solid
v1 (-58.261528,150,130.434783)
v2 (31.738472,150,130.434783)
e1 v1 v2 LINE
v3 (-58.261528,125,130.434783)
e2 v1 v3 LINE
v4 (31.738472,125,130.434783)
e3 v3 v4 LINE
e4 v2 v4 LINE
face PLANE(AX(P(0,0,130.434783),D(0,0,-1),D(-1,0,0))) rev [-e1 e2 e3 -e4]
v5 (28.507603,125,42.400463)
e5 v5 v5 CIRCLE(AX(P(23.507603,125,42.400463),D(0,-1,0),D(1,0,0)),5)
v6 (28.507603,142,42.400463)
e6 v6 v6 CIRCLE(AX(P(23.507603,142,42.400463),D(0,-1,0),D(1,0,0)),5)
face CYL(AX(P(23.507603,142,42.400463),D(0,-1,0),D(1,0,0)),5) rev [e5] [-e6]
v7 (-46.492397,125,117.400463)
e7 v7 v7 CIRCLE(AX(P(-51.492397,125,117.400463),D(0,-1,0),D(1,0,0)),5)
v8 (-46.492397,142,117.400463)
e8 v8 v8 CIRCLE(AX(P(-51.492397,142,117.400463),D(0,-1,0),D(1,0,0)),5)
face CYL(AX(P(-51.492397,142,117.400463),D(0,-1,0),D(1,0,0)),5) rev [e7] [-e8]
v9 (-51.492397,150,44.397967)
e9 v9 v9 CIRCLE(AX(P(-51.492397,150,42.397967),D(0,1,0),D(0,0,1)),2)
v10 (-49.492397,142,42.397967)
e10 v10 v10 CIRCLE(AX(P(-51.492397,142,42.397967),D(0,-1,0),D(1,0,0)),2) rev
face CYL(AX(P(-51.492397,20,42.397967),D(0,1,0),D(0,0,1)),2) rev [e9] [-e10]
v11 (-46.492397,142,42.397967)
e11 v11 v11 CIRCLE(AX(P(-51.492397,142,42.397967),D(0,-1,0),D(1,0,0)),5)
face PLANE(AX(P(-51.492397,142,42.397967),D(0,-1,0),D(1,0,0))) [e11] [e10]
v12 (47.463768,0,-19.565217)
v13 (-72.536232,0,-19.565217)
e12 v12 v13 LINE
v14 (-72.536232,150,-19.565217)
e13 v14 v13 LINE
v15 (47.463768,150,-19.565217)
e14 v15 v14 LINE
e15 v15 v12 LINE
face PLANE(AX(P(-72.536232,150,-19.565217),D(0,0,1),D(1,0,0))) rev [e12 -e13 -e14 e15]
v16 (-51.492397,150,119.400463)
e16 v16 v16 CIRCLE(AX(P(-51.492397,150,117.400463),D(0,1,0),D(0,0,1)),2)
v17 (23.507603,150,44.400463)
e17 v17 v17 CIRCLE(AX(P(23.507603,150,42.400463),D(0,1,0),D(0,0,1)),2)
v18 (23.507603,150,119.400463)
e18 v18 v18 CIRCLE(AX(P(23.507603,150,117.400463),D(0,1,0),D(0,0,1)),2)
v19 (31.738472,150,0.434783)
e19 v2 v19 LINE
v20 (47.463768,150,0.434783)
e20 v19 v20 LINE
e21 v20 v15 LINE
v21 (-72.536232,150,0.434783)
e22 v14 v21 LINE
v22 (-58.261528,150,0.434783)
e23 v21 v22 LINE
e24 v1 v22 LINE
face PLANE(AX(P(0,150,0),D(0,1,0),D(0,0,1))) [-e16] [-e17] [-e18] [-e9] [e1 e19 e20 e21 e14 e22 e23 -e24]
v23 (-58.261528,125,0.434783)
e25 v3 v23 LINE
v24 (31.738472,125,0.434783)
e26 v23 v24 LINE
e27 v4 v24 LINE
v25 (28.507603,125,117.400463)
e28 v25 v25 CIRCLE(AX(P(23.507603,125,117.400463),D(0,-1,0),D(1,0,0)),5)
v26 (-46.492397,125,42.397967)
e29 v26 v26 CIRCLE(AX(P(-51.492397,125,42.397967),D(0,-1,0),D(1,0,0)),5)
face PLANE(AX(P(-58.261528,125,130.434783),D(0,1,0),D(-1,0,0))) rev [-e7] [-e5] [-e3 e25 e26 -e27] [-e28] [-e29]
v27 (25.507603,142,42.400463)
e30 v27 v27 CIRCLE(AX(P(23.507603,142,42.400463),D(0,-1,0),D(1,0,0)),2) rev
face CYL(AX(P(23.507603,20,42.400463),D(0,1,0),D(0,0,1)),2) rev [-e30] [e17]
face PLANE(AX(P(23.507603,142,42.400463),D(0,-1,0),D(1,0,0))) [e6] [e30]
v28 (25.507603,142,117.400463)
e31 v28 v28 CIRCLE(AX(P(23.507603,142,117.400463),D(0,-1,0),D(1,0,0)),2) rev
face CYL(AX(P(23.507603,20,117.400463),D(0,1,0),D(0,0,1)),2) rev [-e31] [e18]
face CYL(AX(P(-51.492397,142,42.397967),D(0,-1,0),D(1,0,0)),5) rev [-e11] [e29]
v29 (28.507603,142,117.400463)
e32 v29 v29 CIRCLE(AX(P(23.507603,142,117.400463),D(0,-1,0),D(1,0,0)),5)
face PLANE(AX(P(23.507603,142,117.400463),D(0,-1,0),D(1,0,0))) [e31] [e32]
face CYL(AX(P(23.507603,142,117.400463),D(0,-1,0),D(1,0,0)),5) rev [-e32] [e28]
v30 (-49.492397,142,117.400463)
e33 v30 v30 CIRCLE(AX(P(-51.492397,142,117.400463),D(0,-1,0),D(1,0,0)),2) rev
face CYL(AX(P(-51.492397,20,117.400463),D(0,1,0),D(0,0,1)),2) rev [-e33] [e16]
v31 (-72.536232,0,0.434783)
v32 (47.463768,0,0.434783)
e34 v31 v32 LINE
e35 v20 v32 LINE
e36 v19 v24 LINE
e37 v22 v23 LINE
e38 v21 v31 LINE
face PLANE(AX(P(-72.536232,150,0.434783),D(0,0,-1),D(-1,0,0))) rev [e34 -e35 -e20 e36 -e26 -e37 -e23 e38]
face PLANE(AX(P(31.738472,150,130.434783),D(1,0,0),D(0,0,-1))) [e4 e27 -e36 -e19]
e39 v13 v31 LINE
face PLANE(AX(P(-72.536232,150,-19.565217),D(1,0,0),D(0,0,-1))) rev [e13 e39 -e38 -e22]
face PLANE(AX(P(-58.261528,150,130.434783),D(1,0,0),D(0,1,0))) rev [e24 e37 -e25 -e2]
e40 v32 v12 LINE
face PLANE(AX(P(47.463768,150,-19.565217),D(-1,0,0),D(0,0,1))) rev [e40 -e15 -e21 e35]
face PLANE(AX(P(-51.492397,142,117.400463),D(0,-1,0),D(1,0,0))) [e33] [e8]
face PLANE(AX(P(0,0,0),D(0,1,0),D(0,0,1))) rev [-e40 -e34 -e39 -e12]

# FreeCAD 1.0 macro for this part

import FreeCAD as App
import Part
import Sketcher


def add_polygon(sketch, points):
    """Adds a closed chain of lines whose ends are joined by coincident constraints."""
    first, n = sketch.GeometryCount, len(points)
    for a, b in zip(points, points[1:] + points[:1]):
        sketch.addGeometry(Part.LineSegment(App.Vector(*a, 0), App.Vector(*b, 0)), False)
    for i in range(n):
        sketch.addConstraint(Sketcher.Constraint("Coincident", first + i, 2, first + (i + 1) % n, 1))

doc = App.newDocument("Part")
body = doc.addObject("PartDesign::Body", "Body")

sketch1 = body.newObject("Sketcher::SketchObject", "Sketch")
sketch1.AttachmentSupport = (doc.getObject("XZ_Plane"), [""])
sketch1.MapMode = "FlatFace"
add_polygon(sketch1, [(-72.536232, -19.565217), (-72.536232, 0.434783), (47.463768, 0.434783), (47.463768, -19.565217)])
sketch1.addConstraint([
    Sketcher.Constraint("Vertical", 0),
    Sketcher.Constraint("Horizontal", 1),
    Sketcher.Constraint("Vertical", 2),
    Sketcher.Constraint("Horizontal", 3),
    Sketcher.Constraint("DistanceX", 1, 1, 1, 2, 120.0),
    Sketcher.Constraint("DistanceY", 0, 1, 0, 2, 20.0),
    Sketcher.Constraint("DistanceX", 0, 2, -1, 1, 72.536232),
    Sketcher.Constraint("DistanceY", -1, 1, 0, 2, 0.434783),
])
pad1 = body.newObject("PartDesign::Pad", "Pad")
pad1.Profile = sketch1
pad1.Length = 150
pad1.Reversed = True

sketch2 = body.newObject("Sketcher::SketchObject", "Sketch001")
sketch2.AttachmentSupport = (doc.getObject("XY_Plane"), [""])
sketch2.MapMode = "FlatFace"
sketch2.AttachmentOffset = App.Placement(App.Vector(0, 0, 0.434783), App.Rotation())
add_polygon(sketch2, [(-58.261528, 150), (-58.261528, 125), (31.738472, 125), (31.738472, 150)])
sketch2.addConstraint([
    Sketcher.Constraint("Vertical", 0),
    Sketcher.Constraint("Horizontal", 1),
    Sketcher.Constraint("Vertical", 2),
    Sketcher.Constraint("Horizontal", 3),
    Sketcher.Constraint("DistanceX", 1, 1, 1, 2, 90.0),
    Sketcher.Constraint("DistanceY", 0, 2, 0, 1, 25.0),
    Sketcher.Constraint("DistanceY", -1, 1, 0, 2, 125.0),
    Sketcher.Constraint("DistanceX", 0, 2, -1, 1, 58.261528),
])
pad2 = body.newObject("PartDesign::Pad", "Pad001")
pad2.Profile = sketch2
pad2.Length = 130

sketch3 = body.newObject("Sketcher::SketchObject", "Sketch002")
sketch3.AttachmentSupport = (doc.getObject("XZ_Plane"), [""])
sketch3.MapMode = "FlatFace"
sketch3.AttachmentOffset = App.Placement(App.Vector(0, 0, -150), App.Rotation())
sketch3.addGeometry([
    Part.Circle(App.Vector(-51.492397, 42.397967, 0), App.Vector(0, 0, 1), 2),
    Part.Circle(App.Vector(23.507603, 42.400463, 0), App.Vector(0, 0, 1), 2),
    Part.Circle(App.Vector(-51.492397, 117.400463, 0), App.Vector(0, 0, 1), 2),
    Part.Circle(App.Vector(23.507603, 117.400463, 0), App.Vector(0, 0, 1), 2),
], False)
sketch3.addConstraint([
    Sketcher.Constraint("Equal", 0, 1),
    Sketcher.Constraint("Equal", 1, 2),
    Sketcher.Constraint("Equal", 2, 3),
    Sketcher.Constraint("Horizontal", 2, 3, 3, 3),
    Sketcher.Constraint("Vertical", 0, 3, 2, 3),
    Sketcher.Constraint("Vertical", 1, 3, 3, 3),
    Sketcher.Constraint("Diameter", 0, 4.0),
    Sketcher.Constraint("DistanceX", 0, 3, 1, 3, 75.0),
    Sketcher.Constraint("DistanceY", 1, 3, 2, 3, 75.0),
    Sketcher.Constraint("DistanceX", 0, 3, -1, 1, 51.492397),
    Sketcher.Constraint("DistanceY", -1, 1, 0, 3, 42.397967),
    Sketcher.Constraint("DistanceY", -1, 1, 1, 3, 42.400463),
])
pocket1 = body.newObject("PartDesign::Pocket", "Pocket")
pocket1.Profile = sketch3
pocket1.Length = 130
pocket1.Reversed = True

sketch4 = body.newObject("Sketcher::SketchObject", "Sketch003")
sketch4.AttachmentSupport = (doc.getObject("XZ_Plane"), [""])
sketch4.MapMode = "FlatFace"
sketch4.AttachmentOffset = App.Placement(App.Vector(0, 0, -125), App.Rotation())
sketch4.addGeometry([
    Part.Circle(App.Vector(-51.492397, 117.400463, 0), App.Vector(0, 0, 1), 5),
    Part.Circle(App.Vector(23.507603, 117.400463, 0), App.Vector(0, 0, 1), 5),
    Part.Circle(App.Vector(23.507603, 42.400463, 0), App.Vector(0, 0, 1), 5),
    Part.Circle(App.Vector(-51.492397, 42.397967, 0), App.Vector(0, 0, 1), 5),
], False)
sketch4.addConstraint([
    Sketcher.Constraint("Equal", 0, 1),
    Sketcher.Constraint("Equal", 1, 2),
    Sketcher.Constraint("Equal", 2, 3),
    Sketcher.Constraint("Horizontal", 0, 3, 1, 3),
    Sketcher.Constraint("Vertical", 1, 3, 2, 3),
    Sketcher.Constraint("Vertical", 0, 3, 3, 3),
    Sketcher.Constraint("Diameter", 0, 10.0),
    Sketcher.Constraint("DistanceX", 0, 3, 1, 3, 75.0),
    Sketcher.Constraint("DistanceY", 2, 3, 1, 3, 75.0),
    Sketcher.Constraint("DistanceX", 0, 3, -1, 1, 51.492397),
    Sketcher.Constraint("DistanceY", -1, 1, 0, 3, 117.400463),
    Sketcher.Constraint("DistanceY", -1, 1, 3, 3, 42.397967),
])
pocket2 = body.newObject("PartDesign::Pocket", "Pocket001")
pocket2.Profile = sketch4
pocket2.Length = 17

doc.recompute()
